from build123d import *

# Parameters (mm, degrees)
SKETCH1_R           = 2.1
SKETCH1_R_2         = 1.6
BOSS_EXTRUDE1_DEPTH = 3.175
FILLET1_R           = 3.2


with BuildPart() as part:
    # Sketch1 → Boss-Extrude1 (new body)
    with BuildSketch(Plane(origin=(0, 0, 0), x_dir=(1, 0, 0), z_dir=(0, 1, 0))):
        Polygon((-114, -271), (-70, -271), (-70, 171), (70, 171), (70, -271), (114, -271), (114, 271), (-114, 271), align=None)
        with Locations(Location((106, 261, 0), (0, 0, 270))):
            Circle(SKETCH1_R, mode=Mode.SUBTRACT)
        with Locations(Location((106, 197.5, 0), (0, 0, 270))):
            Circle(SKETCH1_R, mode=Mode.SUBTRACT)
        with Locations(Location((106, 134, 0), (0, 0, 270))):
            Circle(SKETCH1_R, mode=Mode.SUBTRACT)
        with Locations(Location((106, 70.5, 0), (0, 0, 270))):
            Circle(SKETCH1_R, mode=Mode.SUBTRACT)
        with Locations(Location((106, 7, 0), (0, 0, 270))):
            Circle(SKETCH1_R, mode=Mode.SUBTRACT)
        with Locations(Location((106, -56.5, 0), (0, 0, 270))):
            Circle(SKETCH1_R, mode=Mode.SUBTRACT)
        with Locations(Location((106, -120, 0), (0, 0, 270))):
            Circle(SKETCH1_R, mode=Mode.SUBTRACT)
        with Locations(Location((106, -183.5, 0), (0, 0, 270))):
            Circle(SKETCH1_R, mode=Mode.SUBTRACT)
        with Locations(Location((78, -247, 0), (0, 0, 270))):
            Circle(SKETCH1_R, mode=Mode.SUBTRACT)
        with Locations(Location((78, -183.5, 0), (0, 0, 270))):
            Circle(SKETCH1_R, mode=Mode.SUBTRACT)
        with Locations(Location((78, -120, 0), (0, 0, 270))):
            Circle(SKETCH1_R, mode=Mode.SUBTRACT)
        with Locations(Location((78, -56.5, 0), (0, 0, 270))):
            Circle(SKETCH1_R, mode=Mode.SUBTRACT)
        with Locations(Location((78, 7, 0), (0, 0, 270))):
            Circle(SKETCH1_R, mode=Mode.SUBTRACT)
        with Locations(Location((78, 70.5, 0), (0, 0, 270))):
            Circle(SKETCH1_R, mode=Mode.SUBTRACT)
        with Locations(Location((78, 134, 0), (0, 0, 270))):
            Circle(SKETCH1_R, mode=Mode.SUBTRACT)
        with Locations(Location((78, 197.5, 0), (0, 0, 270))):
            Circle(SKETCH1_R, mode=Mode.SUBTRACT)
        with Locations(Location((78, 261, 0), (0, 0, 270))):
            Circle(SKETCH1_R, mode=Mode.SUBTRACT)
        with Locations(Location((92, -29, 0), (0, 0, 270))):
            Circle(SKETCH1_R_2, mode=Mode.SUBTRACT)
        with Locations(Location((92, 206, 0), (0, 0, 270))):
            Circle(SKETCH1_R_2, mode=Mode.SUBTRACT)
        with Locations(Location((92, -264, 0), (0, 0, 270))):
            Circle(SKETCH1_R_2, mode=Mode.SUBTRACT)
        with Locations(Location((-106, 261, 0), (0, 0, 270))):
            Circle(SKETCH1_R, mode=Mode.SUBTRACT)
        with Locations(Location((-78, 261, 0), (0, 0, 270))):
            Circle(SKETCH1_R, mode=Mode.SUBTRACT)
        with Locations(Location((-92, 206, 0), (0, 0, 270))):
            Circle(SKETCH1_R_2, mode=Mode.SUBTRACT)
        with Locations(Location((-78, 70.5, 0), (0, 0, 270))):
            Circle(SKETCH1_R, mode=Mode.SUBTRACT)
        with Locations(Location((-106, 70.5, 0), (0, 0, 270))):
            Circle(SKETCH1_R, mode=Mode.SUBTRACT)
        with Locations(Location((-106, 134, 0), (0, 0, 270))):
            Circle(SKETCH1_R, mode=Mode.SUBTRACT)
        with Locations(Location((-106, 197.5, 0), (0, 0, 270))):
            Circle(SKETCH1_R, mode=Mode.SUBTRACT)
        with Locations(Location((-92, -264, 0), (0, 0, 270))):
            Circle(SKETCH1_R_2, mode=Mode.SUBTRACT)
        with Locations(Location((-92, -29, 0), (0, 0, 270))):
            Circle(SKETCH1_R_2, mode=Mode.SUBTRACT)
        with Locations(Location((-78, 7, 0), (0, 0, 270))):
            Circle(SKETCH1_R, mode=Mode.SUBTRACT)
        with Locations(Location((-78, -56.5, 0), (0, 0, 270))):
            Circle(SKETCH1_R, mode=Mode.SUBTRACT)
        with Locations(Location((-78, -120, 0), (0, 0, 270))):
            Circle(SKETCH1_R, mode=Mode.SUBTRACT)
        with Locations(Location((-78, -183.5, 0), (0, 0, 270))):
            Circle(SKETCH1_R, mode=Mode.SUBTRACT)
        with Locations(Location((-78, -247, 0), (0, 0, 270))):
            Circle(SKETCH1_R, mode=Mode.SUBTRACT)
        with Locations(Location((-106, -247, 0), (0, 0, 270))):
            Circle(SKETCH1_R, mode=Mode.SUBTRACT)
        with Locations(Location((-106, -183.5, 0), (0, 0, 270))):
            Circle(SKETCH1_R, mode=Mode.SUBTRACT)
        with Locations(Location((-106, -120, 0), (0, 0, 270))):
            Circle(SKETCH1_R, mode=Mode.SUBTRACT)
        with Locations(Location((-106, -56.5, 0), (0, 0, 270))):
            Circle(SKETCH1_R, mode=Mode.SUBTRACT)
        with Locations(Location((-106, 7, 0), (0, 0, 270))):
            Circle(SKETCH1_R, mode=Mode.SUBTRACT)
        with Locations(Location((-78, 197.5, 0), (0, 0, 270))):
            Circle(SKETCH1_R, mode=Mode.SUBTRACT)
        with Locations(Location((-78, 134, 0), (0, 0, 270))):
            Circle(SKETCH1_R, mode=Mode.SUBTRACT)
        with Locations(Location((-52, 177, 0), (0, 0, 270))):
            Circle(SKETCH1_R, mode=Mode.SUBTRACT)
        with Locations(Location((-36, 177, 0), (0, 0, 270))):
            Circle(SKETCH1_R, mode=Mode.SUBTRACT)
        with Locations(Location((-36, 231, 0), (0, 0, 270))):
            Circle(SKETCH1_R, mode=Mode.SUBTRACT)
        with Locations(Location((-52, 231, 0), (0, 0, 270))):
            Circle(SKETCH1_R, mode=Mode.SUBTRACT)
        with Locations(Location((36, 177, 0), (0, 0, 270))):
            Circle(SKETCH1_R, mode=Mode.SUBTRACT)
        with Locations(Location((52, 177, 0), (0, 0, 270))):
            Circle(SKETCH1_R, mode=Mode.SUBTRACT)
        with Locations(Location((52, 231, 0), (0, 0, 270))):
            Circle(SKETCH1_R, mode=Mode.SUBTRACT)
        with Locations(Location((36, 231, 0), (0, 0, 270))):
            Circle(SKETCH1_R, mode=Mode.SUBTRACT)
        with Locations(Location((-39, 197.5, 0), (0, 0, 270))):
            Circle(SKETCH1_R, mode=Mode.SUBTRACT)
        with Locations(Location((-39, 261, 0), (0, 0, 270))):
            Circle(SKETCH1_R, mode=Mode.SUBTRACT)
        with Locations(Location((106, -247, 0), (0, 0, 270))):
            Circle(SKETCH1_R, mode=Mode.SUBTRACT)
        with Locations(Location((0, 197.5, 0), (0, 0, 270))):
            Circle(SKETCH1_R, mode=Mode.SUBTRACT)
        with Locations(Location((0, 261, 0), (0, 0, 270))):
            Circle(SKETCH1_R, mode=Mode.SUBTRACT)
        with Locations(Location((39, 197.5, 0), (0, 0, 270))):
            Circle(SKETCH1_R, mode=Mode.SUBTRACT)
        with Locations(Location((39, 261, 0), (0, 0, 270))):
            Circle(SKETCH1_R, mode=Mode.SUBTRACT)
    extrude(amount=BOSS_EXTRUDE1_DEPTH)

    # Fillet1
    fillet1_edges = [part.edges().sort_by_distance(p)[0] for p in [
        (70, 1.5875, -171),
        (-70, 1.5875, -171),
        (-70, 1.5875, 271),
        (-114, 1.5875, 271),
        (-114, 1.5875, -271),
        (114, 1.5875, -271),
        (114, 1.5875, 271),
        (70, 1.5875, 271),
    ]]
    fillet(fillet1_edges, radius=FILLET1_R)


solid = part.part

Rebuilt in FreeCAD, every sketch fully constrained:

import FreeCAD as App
import Part
import Sketcher
from FreeCAD import Vector
Q = App.Units.Quantity


def edges_at(feature, points):
    """Names of the edges that pass closest to the given points."""
    edges = feature.Shape.Edges
    near = lambda p: min(range(len(edges)), key=lambda i: edges[i].distToShape(Part.Vertex(*p))[0])
    return sorted({f"Edge{near(p) + 1}" for p in points})

doc = App.newDocument("Part")
params = doc.addObject("Spreadsheet::Sheet", "Params")
for row, (alias, value) in enumerate([
    ("sketch1_diameter", "4.2 mm"),
    ("sketch1_diameter2", "3.2 mm"),
    ("sketch1_width", "44 mm"),
    ("sketch1_width2", "140 mm"),
    ("sketch1_height", "442 mm"),
    ("pad1_length", "3.175 mm"),
    ("fillet_radius", "3.2 mm"),
], start=1):
    params.set(f"A{row}", alias)
    params.set(f"B{row}", "=" + value)
    params.setAlias(f"B{row}", alias)

body = doc.addObject("PartDesign::Body", "Body")

sketch1 = body.newObject("Sketcher::SketchObject", "Sketch")
sketch1.AttachmentSupport = (doc.getObject("XZ_Plane"), [""])
sketch1.MapMode = "FlatFace"
sketch1.addGeometry(Part.LineSegment(Vector(-114, 271, 0), Vector(-70, 271, 0)), False)
sketch1.addGeometry(Part.LineSegment(Vector(-70, 271, 0), Vector(-70, -171, 0)), False)
sketch1.addGeometry(Part.LineSegment(Vector(-70, -171, 0), Vector(70, -171, 0)), False)
sketch1.addGeometry(Part.LineSegment(Vector(70, -171, 0), Vector(70, 271, 0)), False)
sketch1.addGeometry(Part.LineSegment(Vector(70, 271, 0), Vector(114, 271, 0)), False)
sketch1.addGeometry(Part.LineSegment(Vector(114, 271, 0), Vector(114, -271, 0)), False)
sketch1.addGeometry(Part.LineSegment(Vector(114, -271, 0), Vector(-114, -271, 0)), False)
sketch1.addGeometry(Part.LineSegment(Vector(-114, -271, 0), Vector(-114, 271, 0)), False)
sketch1.addGeometry(Part.Circle(Vector(-106, 247, 0), Vector(0, 0, 1), 2.1), False)
sketch1.addGeometry(Part.Circle(Vector(-92, 264, 0), Vector(0, 0, 1), 1.6), False)
sketch1.addGeometry(Part.Circle(Vector(-78, 247, 0), Vector(0, 0, 1), 2.1), False)
sketch1.addGeometry(Part.Circle(Vector(-106, 183.5, 0), Vector(0, 0, 1), 2.1), False)
sketch1.addGeometry(Part.Circle(Vector(-78, 183.5, 0), Vector(0, 0, 1), 2.1), False)
sketch1.addGeometry(Part.Circle(Vector(-106, 120, 0), Vector(0, 0, 1), 2.1), False)
sketch1.addGeometry(Part.Circle(Vector(-78, 120, 0), Vector(0, 0, 1), 2.1), False)
sketch1.addGeometry(Part.Circle(Vector(-106, 56.5, 0), Vector(0, 0, 1), 2.1), False)
sketch1.addGeometry(Part.Circle(Vector(-92, 29, 0), Vector(0, 0, 1), 1.6), False)
sketch1.addGeometry(Part.Circle(Vector(-78, 56.5, 0), Vector(0, 0, 1), 2.1), False)
sketch1.addGeometry(Part.Circle(Vector(78, 247, 0), Vector(0, 0, 1), 2.1), False)
sketch1.addGeometry(Part.Circle(Vector(92, 264, 0), Vector(0, 0, 1), 1.6), False)
sketch1.addGeometry(Part.Circle(Vector(106, 247, 0), Vector(0, 0, 1), 2.1), False)
sketch1.addGeometry(Part.Circle(Vector(78, 183.5, 0), Vector(0, 0, 1), 2.1), False)
sketch1.addGeometry(Part.Circle(Vector(106, 183.5, 0), Vector(0, 0, 1), 2.1), False)
sketch1.addGeometry(Part.Circle(Vector(78, 120, 0), Vector(0, 0, 1), 2.1), False)
sketch1.addGeometry(Part.Circle(Vector(106, 120, 0), Vector(0, 0, 1), 2.1), False)
sketch1.addGeometry(Part.Circle(Vector(78, 56.5, 0), Vector(0, 0, 1), 2.1), False)
sketch1.addGeometry(Part.Circle(Vector(106, 56.5, 0), Vector(0, 0, 1), 2.1), False)
sketch1.addGeometry(Part.Circle(Vector(92, 29, 0), Vector(0, 0, 1), 1.6), False)
sketch1.addGeometry(Part.Circle(Vector(-106, -7, 0), Vector(0, 0, 1), 2.1), False)
sketch1.addGeometry(Part.Circle(Vector(-78, -7, 0), Vector(0, 0, 1), 2.1), False)
sketch1.addGeometry(Part.Circle(Vector(-106, -70.5, 0), Vector(0, 0, 1), 2.1), False)
sketch1.addGeometry(Part.Circle(Vector(-78, -70.5, 0), Vector(0, 0, 1), 2.1), False)
sketch1.addGeometry(Part.Circle(Vector(-106, -134, 0), Vector(0, 0, 1), 2.1), False)
sketch1.addGeometry(Part.Circle(Vector(-78, -134, 0), Vector(0, 0, 1), 2.1), False)
sketch1.addGeometry(Part.Circle(Vector(-106, -197.5, 0), Vector(0, 0, 1), 2.1), False)
sketch1.addGeometry(Part.Circle(Vector(-92, -206, 0), Vector(0, 0, 1), 1.6), False)
sketch1.addGeometry(Part.Circle(Vector(-106, -261, 0), Vector(0, 0, 1), 2.1), False)
sketch1.addGeometry(Part.Circle(Vector(-78, -197.5, 0), Vector(0, 0, 1), 2.1), False)
sketch1.addGeometry(Part.Circle(Vector(-78, -261, 0), Vector(0, 0, 1), 2.1), False)
sketch1.addGeometry(Part.Circle(Vector(-52, -177, 0), Vector(0, 0, 1), 2.1), False)
sketch1.addGeometry(Part.Circle(Vector(-36, -177, 0), Vector(0, 0, 1), 2.1), False)
sketch1.addGeometry(Part.Circle(Vector(-39, -197.5, 0), Vector(0, 0, 1), 2.1), False)
sketch1.addGeometry(Part.Circle(Vector(-52, -231, 0), Vector(0, 0, 1), 2.1), False)
sketch1.addGeometry(Part.Circle(Vector(-36, -231, 0), Vector(0, 0, 1), 2.1), False)
sketch1.addGeometry(Part.Circle(Vector(-39, -261, 0), Vector(0, 0, 1), 2.1), False)
sketch1.addGeometry(Part.Circle(Vector(78, -7, 0), Vector(0, 0, 1), 2.1), False)
sketch1.addGeometry(Part.Circle(Vector(106, -7, 0), Vector(0, 0, 1), 2.1), False)
sketch1.addGeometry(Part.Circle(Vector(78, -70.5, 0), Vector(0, 0, 1), 2.1), False)
sketch1.addGeometry(Part.Circle(Vector(106, -70.5, 0), Vector(0, 0, 1), 2.1), False)
sketch1.addGeometry(Part.Circle(Vector(36, -177, 0), Vector(0, 0, 1), 2.1), False)
sketch1.addGeometry(Part.Circle(Vector(52, -177, 0), Vector(0, 0, 1), 2.1), False)
sketch1.addGeometry(Part.Circle(Vector(0, -197.5, 0), Vector(0, 0, 1), 2.1), False)
sketch1.addGeometry(Part.Circle(Vector(0, -261, 0), Vector(0, 0, 1), 2.1), False)
sketch1.addGeometry(Part.Circle(Vector(39, -197.5, 0), Vector(0, 0, 1), 2.1), False)
sketch1.addGeometry(Part.Circle(Vector(36, -231, 0), Vector(0, 0, 1), 2.1), False)
sketch1.addGeometry(Part.Circle(Vector(39, -261, 0), Vector(0, 0, 1), 2.1), False)
sketch1.addGeometry(Part.Circle(Vector(52, -231, 0), Vector(0, 0, 1), 2.1), False)
sketch1.addGeometry(Part.Circle(Vector(78, -134, 0), Vector(0, 0, 1), 2.1), False)
sketch1.addGeometry(Part.Circle(Vector(106, -134, 0), Vector(0, 0, 1), 2.1), False)
sketch1.addGeometry(Part.Circle(Vector(78, -197.5, 0), Vector(0, 0, 1), 2.1), False)
sketch1.addGeometry(Part.Circle(Vector(78, -261, 0), Vector(0, 0, 1), 2.1), False)
sketch1.addGeometry(Part.Circle(Vector(92, -206, 0), Vector(0, 0, 1), 1.6), False)
sketch1.addGeometry(Part.Circle(Vector(106, -197.5, 0), Vector(0, 0, 1), 2.1), False)
sketch1.addGeometry(Part.Circle(Vector(106, -261, 0), Vector(0, 0, 1), 2.1), False)
sketch1.addConstraint(Sketcher.Constraint("Coincident", 0, 2, 1, 1))
sketch1.addConstraint(Sketcher.Constraint("Coincident", 1, 2, 2, 1))
sketch1.addConstraint(Sketcher.Constraint("Coincident", 2, 2, 3, 1))
sketch1.addConstraint(Sketcher.Constraint("Coincident", 3, 2, 4, 1))
sketch1.addConstraint(Sketcher.Constraint("Coincident", 4, 2, 5, 1))
sketch1.addConstraint(Sketcher.Constraint("Coincident", 5, 2, 6, 1))
sketch1.addConstraint(Sketcher.Constraint("Coincident", 6, 2, 7, 1))
sketch1.addConstraint(Sketcher.Constraint("Coincident", 7, 2, 0, 1))
sketch1.addConstraint(Sketcher.Constraint("Horizontal", 0))
sketch1.addConstraint(Sketcher.Constraint("Vertical", 1))
sketch1.addConstraint(Sketcher.Constraint("Horizontal", 2))
sketch1.addConstraint(Sketcher.Constraint("Vertical", 3))
sketch1.addConstraint(Sketcher.Constraint("Horizontal", 4))
sketch1.addConstraint(Sketcher.Constraint("Vertical", 5))
sketch1.addConstraint(Sketcher.Constraint("Horizontal", 6))
sketch1.addConstraint(Sketcher.Constraint("Vertical", 7))
sketch1.addConstraint(Sketcher.Constraint("Equal", 8, 10))
sketch1.addConstraint(Sketcher.Constraint("Equal", 10, 11))
sketch1.addConstraint(Sketcher.Constraint("Equal", 11, 12))
sketch1.addConstraint(Sketcher.Constraint("Equal", 12, 13))
sketch1.addConstraint(Sketcher.Constraint("Equal", 13, 14))
sketch1.addConstraint(Sketcher.Constraint("Equal", 14, 15))
sketch1.addConstraint(Sketcher.Constraint("Equal", 9, 16))
sketch1.addConstraint(Sketcher.Constraint("Equal", 15, 17))
sketch1.addConstraint(Sketcher.Constraint("Equal", 17, 18))
sketch1.addConstraint(Sketcher.Constraint("Equal", 16, 19))
sketch1.addConstraint(Sketcher.Constraint("Equal", 18, 20))
sketch1.addConstraint(Sketcher.Constraint("Equal", 20, 21))
sketch1.addConstraint(Sketcher.Constraint("Equal", 21, 22))
sketch1.addConstraint(Sketcher.Constraint("Equal", 22, 23))
sketch1.addConstraint(Sketcher.Constraint("Equal", 23, 24))
sketch1.addConstraint(Sketcher.Constraint("Equal", 24, 25))
sketch1.addConstraint(Sketcher.Constraint("Equal", 25, 26))
sketch1.addConstraint(Sketcher.Constraint("Equal", 19, 27))
sketch1.addConstraint(Sketcher.Constraint("Equal", 26, 28))
sketch1.addConstraint(Sketcher.Constraint("Equal", 28, 29))
sketch1.addConstraint(Sketcher.Constraint("Equal", 29, 30))
sketch1.addConstraint(Sketcher.Constraint("Equal", 30, 31))
sketch1.addConstraint(Sketcher.Constraint("Equal", 31, 32))
sketch1.addConstraint(Sketcher.Constraint("Equal", 32, 33))
sketch1.addConstraint(Sketcher.Constraint("Equal", 33, 34))
sketch1.addConstraint(Sketcher.Constraint("Equal", 27, 35))
sketch1.addConstraint(Sketcher.Constraint("Equal", 34, 36))
sketch1.addConstraint(Sketcher.Constraint("Equal", 36, 37))
sketch1.addConstraint(Sketcher.Constraint("Equal", 37, 38))
sketch1.addConstraint(Sketcher.Constraint("Equal", 38, 39))
sketch1.addConstraint(Sketcher.Constraint("Equal", 39, 40))
sketch1.addConstraint(Sketcher.Constraint("Equal", 40, 41))
sketch1.addConstraint(Sketcher.Constraint("Equal", 41, 42))
sketch1.addConstraint(Sketcher.Constraint("Equal", 42, 43))
sketch1.addConstraint(Sketcher.Constraint("Equal", 43, 44))
sketch1.addConstraint(Sketcher.Constraint("Equal", 44, 45))
sketch1.addConstraint(Sketcher.Constraint("Equal", 45, 46))
sketch1.addConstraint(Sketcher.Constraint("Equal", 46, 47))
sketch1.addConstraint(Sketcher.Constraint("Equal", 47, 48))
sketch1.addConstraint(Sketcher.Constraint("Equal", 48, 49))
sketch1.addConstraint(Sketcher.Constraint("Equal", 49, 50))
sketch1.addConstraint(Sketcher.Constraint("Equal", 50, 51))
sketch1.addConstraint(Sketcher.Constraint("Equal", 51, 52))
sketch1.addConstraint(Sketcher.Constraint("Equal", 52, 53))
sketch1.addConstraint(Sketcher.Constraint("Equal", 53, 54))
sketch1.addConstraint(Sketcher.Constraint("Equal", 54, 55))
sketch1.addConstraint(Sketcher.Constraint("Equal", 55, 56))
sketch1.addConstraint(Sketcher.Constraint("Equal", 56, 57))
sketch1.addConstraint(Sketcher.Constraint("Equal", 57, 58))
sketch1.addConstraint(Sketcher.Constraint("Equal", 58, 59))
sketch1.addConstraint(Sketcher.Constraint("Equal", 59, 60))
sketch1.addConstraint(Sketcher.Constraint("Equal", 35, 61))
sketch1.addConstraint(Sketcher.Constraint("Equal", 60, 62))
sketch1.addConstraint(Sketcher.Constraint("Equal", 62, 63))
sketch1.addConstraint(Sketcher.Constraint("Symmetric", 4, 2, 6, 2, -1, 1))
sketch1.addConstraint(Sketcher.Constraint("Symmetric", 10, 3, 18, 3, -2))
sketch1.addConstraint(Sketcher.Constraint("Symmetric", 9, 3, 19, 3, -2))
sketch1.addConstraint(Sketcher.Constraint("Symmetric", 8, 3, 20, 3, -2))
sketch1.addConstraint(Sketcher.Constraint("Symmetric", 12, 3, 21, 3, -2))
sketch1.addConstraint(Sketcher.Constraint("Symmetric", 11, 3, 22, 3, -2))
sketch1.addConstraint(Sketcher.Constraint("Symmetric", 14, 3, 23, 3, -2))
sketch1.addConstraint(Sketcher.Constraint("Symmetric", 13, 3, 24, 3, -2))
sketch1.addConstraint(Sketcher.Constraint("Symmetric", 17, 3, 25, 3, -2))
sketch1.addConstraint(Sketcher.Constraint("Symmetric", 15, 3, 26, 3, -2))
sketch1.addConstraint(Sketcher.Constraint("Symmetric", 16, 3, 27, 3, -2))
sketch1.addConstraint(Sketcher.Constraint("Symmetric", 29, 3, 45, 3, -2))
sketch1.addConstraint(Sketcher.Constraint("Symmetric", 28, 3, 46, 3, -2))
sketch1.addConstraint(Sketcher.Constraint("Symmetric", 31, 3, 47, 3, -2))
sketch1.addConstraint(Sketcher.Constraint("Symmetric", 30, 3, 48, 3, -2))
sketch1.addConstraint(Sketcher.Constraint("Symmetric", 40, 3, 49, 3, -2))
sketch1.addConstraint(Sketcher.Constraint("Symmetric", 39, 3, 50, 3, -2))
sketch1.addConstraint(Sketcher.Constraint("Symmetric", 41, 3, 53, 3, -2))
sketch1.addConstraint(Sketcher.Constraint("Symmetric", 43, 3, 54, 3, -2))
sketch1.addConstraint(Sketcher.Constraint("Symmetric", 44, 3, 55, 3, -2))
sketch1.addConstraint(Sketcher.Constraint("Symmetric", 42, 3, 56, 3, -2))
sketch1.addConstraint(Sketcher.Constraint("Symmetric", 33, 3, 57, 3, -2))
sketch1.addConstraint(Sketcher.Constraint("Symmetric", 32, 3, 58, 3, -2))
sketch1.addConstraint(Sketcher.Constraint("Symmetric", 37, 3, 59, 3, -2))
sketch1.addConstraint(Sketcher.Constraint("Symmetric", 38, 3, 60, 3, -2))
sketch1.addConstraint(Sketcher.Constraint("Symmetric", 35, 3, 61, 3, -2))
sketch1.addConstraint(Sketcher.Constraint("Symmetric", 34, 3, 62, 3, -2))
sketch1.addConstraint(Sketcher.Constraint("Symmetric", 36, 3, 63, 3, -2))
sketch1.addConstraint(Sketcher.Constraint("Symmetric", 0, 2, 3, 2, -2))
sketch1.addConstraint(Sketcher.Constraint("PointOnObject", 51, 3, -2))
sketch1.addConstraint(Sketcher.Constraint("PointOnObject", 52, 3, -2))
sketch1.addConstraint(Sketcher.Constraint("Horizontal", 8, 3, 10, 3))
sketch1.addConstraint(Sketcher.Constraint("Horizontal", 11, 3, 12, 3))
sketch1.addConstraint(Sketcher.Constraint("Horizontal", 13, 3, 14, 3))
sketch1.addConstraint(Sketcher.Constraint("Horizontal", 15, 3, 17, 3))
sketch1.addConstraint(Sketcher.Constraint("Horizontal", 28, 3, 29, 3))
sketch1.addConstraint(Sketcher.Constraint("Horizontal", 30, 3, 31, 3))
sketch1.addConstraint(Sketcher.Constraint("Horizontal", 32, 3, 33, 3))
sketch1.addConstraint(Sketcher.Constraint("Horizontal", 34, 3, 37, 3))
sketch1.addConstraint(Sketcher.Constraint("Horizontal", 36, 3, 38, 3))
sketch1.addConstraint(Sketcher.Constraint("Horizontal", 39, 3, 40, 3))
sketch1.addConstraint(Sketcher.Constraint("Horizontal", 37, 3, 41, 3))
sketch1.addConstraint(Sketcher.Constraint("Horizontal", 42, 3, 43, 3))
sketch1.addConstraint(Sketcher.Constraint("Horizontal", 38, 3, 44, 3))
sketch1.addConstraint(Sketcher.Constraint("Horizontal", 41, 3, 51, 3))
sketch1.addConstraint(Sketcher.Constraint("Horizontal", 44, 3, 52, 3))
sketch1.addConstraint(Sketcher.Constraint("Vertical", 8, 3, 11, 3))
sketch1.addConstraint(Sketcher.Constraint("Vertical", 10, 3, 12, 3))
sketch1.addConstraint(Sketcher.Constraint("Vertical", 11, 3, 13, 3))
sketch1.addConstraint(Sketcher.Constraint("Vertical", 12, 3, 14, 3))
sketch1.addConstraint(Sketcher.Constraint("Vertical", 13, 3, 15, 3))
sketch1.addConstraint(Sketcher.Constraint("Vertical", 9, 3, 16, 3))
sketch1.addConstraint(Sketcher.Constraint("Vertical", 14, 3, 17, 3))
sketch1.addConstraint(Sketcher.Constraint("Vertical", 15, 3, 28, 3))
sketch1.addConstraint(Sketcher.Constraint("Vertical", 17, 3, 29, 3))
sketch1.addConstraint(Sketcher.Constraint("Vertical", 28, 3, 30, 3))
sketch1.addConstraint(Sketcher.Constraint("Vertical", 29, 3, 31, 3))
sketch1.addConstraint(Sketcher.Constraint("Vertical", 30, 3, 32, 3))
sketch1.addConstraint(Sketcher.Constraint("Vertical", 31, 3, 33, 3))
sketch1.addConstraint(Sketcher.Constraint("Vertical", 32, 3, 34, 3))
sketch1.addConstraint(Sketcher.Constraint("Vertical", 16, 3, 35, 3))
sketch1.addConstraint(Sketcher.Constraint("Vertical", 34, 3, 36, 3))
sketch1.addConstraint(Sketcher.Constraint("Vertical", 33, 3, 37, 3))
sketch1.addConstraint(Sketcher.Constraint("Vertical", 37, 3, 38, 3))
sketch1.addConstraint(Sketcher.Constraint("Vertical", 39, 3, 42, 3))
sketch1.addConstraint(Sketcher.Constraint("Vertical", 40, 3, 43, 3))
sketch1.addConstraint(Sketcher.Constraint("Vertical", 41, 3, 44, 3))
sketch1.addConstraint(Sketcher.Constraint("Diameter", 8, Q("4.2 mm")))
sketch1.addConstraint(Sketcher.Constraint("Diameter", 9, Q("3.2 mm")))
sketch1.addConstraint(Sketcher.Constraint("DistanceX", 0, 1, 0, 2, Q("44 mm")))
sketch1.addConstraint(Sketcher.Constraint("DistanceX", 2, 1, 2, 2, Q("140 mm")))
sketch1.addConstraint(Sketcher.Constraint("DistanceY", 1, 2, 1, 1, Q("442 mm")))
sketch1.addConstraint(Sketcher.Constraint("DistanceY", 5, 2, 5, 1, Q("542 mm")))
sketch1.addConstraint(Sketcher.Constraint("DistanceX", 8, 3, -1, 1, Q("106 mm")))
sketch1.addConstraint(Sketcher.Constraint("DistanceY", -1, 1, 8, 3, Q("247 mm")))
sketch1.addConstraint(Sketcher.Constraint("DistanceX", 9, 3, -1, 1, Q("92 mm")))
sketch1.addConstraint(Sketcher.Constraint("DistanceY", -1, 1, 9, 3, Q("264 mm")))
sketch1.addConstraint(Sketcher.Constraint("DistanceX", 10, 3, -1, 1, Q("78 mm")))
sketch1.addConstraint(Sketcher.Constraint("DistanceY", -1, 1, 13, 3, Q("120 mm")))
sketch1.addConstraint(Sketcher.Constraint("DistanceY", -1, 1, 16, 3, Q("29 mm")))
sketch1.addConstraint(Sketcher.Constraint("DistanceY", 28, 3, -1, 1, Q("7 mm")))
sketch1.addConstraint(Sketcher.Constraint("DistanceY", 32, 3, -1, 1, Q("134 mm")))
sketch1.addConstraint(Sketcher.Constraint("DistanceY", 35, 3, -1, 1, Q("206 mm")))
sketch1.addConstraint(Sketcher.Constraint("DistanceY", 36, 3, -1, 1, Q("261 mm")))
sketch1.addConstraint(Sketcher.Constraint("DistanceX", 39, 3, -1, 1, Q("52 mm")))
sketch1.addConstraint(Sketcher.Constraint("DistanceY", 39, 3, -1, 1, Q("177 mm")))
sketch1.addConstraint(Sketcher.Constraint("DistanceX", 40, 3, -1, 1, Q("36 mm")))
sketch1.addConstraint(Sketcher.Constraint("DistanceX", 41, 3, -1, 1, Q("39 mm")))
sketch1.addConstraint(Sketcher.Constraint("DistanceY", 42, 3, -1, 1, Q("231 mm")))
sketch1.addConstraint(Sketcher.Constraint("DistanceY", -1, 1, 11, 3, Q("183.5 mm")))
sketch1.addConstraint(Sketcher.Constraint("DistanceY", -1, 1, 15, 3, Q("56.5 mm")))
sketch1.addConstraint(Sketcher.Constraint("DistanceY", 30, 3, -1, 1, Q("70.5 mm")))
sketch1.addConstraint(Sketcher.Constraint("DistanceY", 34, 3, -1, 1, Q("197.5 mm")))
sketch1.setExpression("Constraints[137]", "Params.sketch1_diameter")
sketch1.setExpression("Constraints[138]", "Params.sketch1_diameter2")
sketch1.setExpression("Constraints[139]", "Params.sketch1_width")
sketch1.setExpression("Constraints[140]", "Params.sketch1_width2")
sketch1.setExpression("Constraints[141]", "Params.sketch1_height")
pad1 = body.newObject("PartDesign::Pad", "Pad")
pad1.Profile = sketch1
pad1.setExpression("Length", "Params.pad1_length")
pad1.Reversed = True
doc.recompute()

fillet = body.newObject("PartDesign::Fillet", "Fillet")
fillet.Base = (pad1, edges_at(pad1, [
    (70, 1.587, -171),
    (-70, 1.587, -171),
    (-70, 1.587, 271),
    (-114, 1.587, 271),
    (-114, 1.587, -271),
    (114, 1.587, -271),
    (114, 1.587, 271),
    (70, 1.587, 271),
]))
fillet.setExpression("Radius", "Params.fillet_radius")

doc.recompute()
